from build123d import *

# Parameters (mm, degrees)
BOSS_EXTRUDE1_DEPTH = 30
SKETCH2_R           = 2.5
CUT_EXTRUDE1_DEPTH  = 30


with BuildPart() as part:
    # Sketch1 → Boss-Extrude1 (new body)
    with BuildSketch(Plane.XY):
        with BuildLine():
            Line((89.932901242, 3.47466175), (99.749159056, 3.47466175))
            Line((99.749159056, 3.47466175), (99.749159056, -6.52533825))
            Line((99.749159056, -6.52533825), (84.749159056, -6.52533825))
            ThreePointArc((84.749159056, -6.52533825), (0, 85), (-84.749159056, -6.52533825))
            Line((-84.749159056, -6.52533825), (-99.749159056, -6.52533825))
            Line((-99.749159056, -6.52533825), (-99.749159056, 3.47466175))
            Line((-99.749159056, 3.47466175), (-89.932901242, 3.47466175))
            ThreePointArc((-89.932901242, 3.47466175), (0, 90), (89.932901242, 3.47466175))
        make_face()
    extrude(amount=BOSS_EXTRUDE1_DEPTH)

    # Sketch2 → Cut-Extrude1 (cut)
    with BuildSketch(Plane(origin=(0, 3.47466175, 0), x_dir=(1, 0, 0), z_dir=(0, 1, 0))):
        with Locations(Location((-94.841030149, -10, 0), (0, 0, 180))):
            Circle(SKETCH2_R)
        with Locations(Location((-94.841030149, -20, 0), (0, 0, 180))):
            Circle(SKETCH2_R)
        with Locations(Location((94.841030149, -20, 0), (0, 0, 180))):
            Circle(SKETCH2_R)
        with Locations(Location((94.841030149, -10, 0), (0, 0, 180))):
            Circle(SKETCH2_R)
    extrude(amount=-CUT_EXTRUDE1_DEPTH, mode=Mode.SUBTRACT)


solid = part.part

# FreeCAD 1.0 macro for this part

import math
import FreeCAD as App
import Part
import Sketcher
Q = App.Units.Quantity

doc = App.newDocument("Part")
body = doc.addObject("PartDesign::Body", "Body")

# Sketch on XY plane
sketch1 = body.newObject("Sketcher::SketchObject", "Sketch")
sketch1.AttachmentSupport = (doc.getObject("XY_Plane"), [""])
sketch1.MapMode = "FlatFace"
sketch1.addGeometry([
    Part.LineSegment(App.Vector(100, 3, 0), App.Vector(90, 3, 0)),  # 0
    Part.ArcOfCircle(Part.Circle(App.Vector(0, 0, 0), App.Vector(0, 0, 1), 90), math.radians(2), math.radians(178)),  # 1
    Part.LineSegment(App.Vector(-90, 3, 0), App.Vector(-100, 3, 0)),  # 2
    Part.LineSegment(App.Vector(-100, 3, 0), App.Vector(-100, -7, 0)),  # 3
    Part.LineSegment(App.Vector(-100, -7, 0), App.Vector(-85, -7, 0)),  # 4
    Part.ArcOfCircle(Part.Circle(App.Vector(0, 0, 0), App.Vector(0, 0, 1), 85), math.radians(-4), math.radians(184)),  # 5
    Part.LineSegment(App.Vector(85, -7, 0), App.Vector(100, -7, 0)),  # 6
    Part.LineSegment(App.Vector(100, -7, 0), App.Vector(100, 3, 0)),  # 7
], False)
sketch1.addConstraint([
    Sketcher.Constraint("Coincident", 0, 2, 1, 1),
    Sketcher.Constraint("Coincident", 1, 2, 2, 1),
    Sketcher.Constraint("Coincident", 2, 2, 3, 1),
    Sketcher.Constraint("Coincident", 3, 2, 4, 1),
    Sketcher.Constraint("Coincident", 4, 2, 5, 2),
    Sketcher.Constraint("Coincident", 5, 1, 6, 1),
    Sketcher.Constraint("Coincident", 6, 2, 7, 1),
    Sketcher.Constraint("Coincident", 7, 2, 0, 1),
    Sketcher.Constraint("Horizontal", 0),
    Sketcher.Constraint("Horizontal", 2),
    Sketcher.Constraint("Vertical", 3),
    Sketcher.Constraint("Horizontal", 4),
    Sketcher.Constraint("Horizontal", 6),
    Sketcher.Constraint("Vertical", 7),
    Sketcher.Constraint("Coincident", 1, 3, -1, 1),
    Sketcher.Constraint("Coincident", 5, 3, -1, 1),
    Sketcher.Constraint("Symmetric", 3, 2, 6, 2, -2),
    Sketcher.Constraint("Horizontal", 0, 2, 1, 2),
    Sketcher.Constraint("Radius", 1, Q("90 mm")),
    Sketcher.Constraint("Radius", 5, Q("85 mm")),
    Sketcher.Constraint("DistanceX", 4, 1, 4, 2, Q("15 mm")),
    Sketcher.Constraint("DistanceY", 3, 2, 3, 1, Q("10 mm")),
    Sketcher.Constraint("DistanceX", -1, 1, 0, 2, Q("89.932901 mm")),
])
pad1 = body.newObject("PartDesign::Pad", "Pad")
pad1.Profile = sketch1
pad1.Length = 30

# Sketch on XZ plane
sketch2 = body.newObject("Sketcher::SketchObject", "Sketch001")
sketch2.AttachmentSupport = (doc.getObject("XZ_Plane"), [""])
sketch2.MapMode = "FlatFace"
sketch2.AttachmentOffset = App.Placement(App.Vector(0, 0, -3.474662), App.Rotation())
sketch2.addGeometry([
    Part.Circle(App.Vector(-94.8, 10, 0), App.Vector(0, 0, 1), 2.5),
    Part.Circle(App.Vector(-94.8, 20, 0), App.Vector(0, 0, 1), 2.5),
    Part.Circle(App.Vector(94.8, 20, 0), App.Vector(0, 0, 1), 2.5),
    Part.Circle(App.Vector(94.8, 10, 0), App.Vector(0, 0, 1), 2.5),
], False)
sketch2.addConstraint([
    Sketcher.Constraint("Equal", 0, 1),
    Sketcher.Constraint("Equal", 1, 2),
    Sketcher.Constraint("Equal", 2, 3),
    Sketcher.Constraint("Symmetric", 1, 3, 2, 3, -2),
    Sketcher.Constraint("Symmetric", 0, 3, 3, 3, -2),
    Sketcher.Constraint("Vertical", 0, 3, 1, 3),
    Sketcher.Constraint("Diameter", 0, Q("5 mm")),
    Sketcher.Constraint("DistanceY", -1, 1, 0, 3, Q("10 mm")),
    Sketcher.Constraint("DistanceY", -1, 1, 1, 3, Q("20 mm")),
    Sketcher.Constraint("DistanceX", 0, 3, -1, 1, Q("94.84103 mm")),
])
pocket1 = body.newObject("PartDesign::Pocket", "Pocket")
pocket1.Profile = sketch2
pocket1.Length = 30
pocket1.Reversed = True

doc.recompute()
